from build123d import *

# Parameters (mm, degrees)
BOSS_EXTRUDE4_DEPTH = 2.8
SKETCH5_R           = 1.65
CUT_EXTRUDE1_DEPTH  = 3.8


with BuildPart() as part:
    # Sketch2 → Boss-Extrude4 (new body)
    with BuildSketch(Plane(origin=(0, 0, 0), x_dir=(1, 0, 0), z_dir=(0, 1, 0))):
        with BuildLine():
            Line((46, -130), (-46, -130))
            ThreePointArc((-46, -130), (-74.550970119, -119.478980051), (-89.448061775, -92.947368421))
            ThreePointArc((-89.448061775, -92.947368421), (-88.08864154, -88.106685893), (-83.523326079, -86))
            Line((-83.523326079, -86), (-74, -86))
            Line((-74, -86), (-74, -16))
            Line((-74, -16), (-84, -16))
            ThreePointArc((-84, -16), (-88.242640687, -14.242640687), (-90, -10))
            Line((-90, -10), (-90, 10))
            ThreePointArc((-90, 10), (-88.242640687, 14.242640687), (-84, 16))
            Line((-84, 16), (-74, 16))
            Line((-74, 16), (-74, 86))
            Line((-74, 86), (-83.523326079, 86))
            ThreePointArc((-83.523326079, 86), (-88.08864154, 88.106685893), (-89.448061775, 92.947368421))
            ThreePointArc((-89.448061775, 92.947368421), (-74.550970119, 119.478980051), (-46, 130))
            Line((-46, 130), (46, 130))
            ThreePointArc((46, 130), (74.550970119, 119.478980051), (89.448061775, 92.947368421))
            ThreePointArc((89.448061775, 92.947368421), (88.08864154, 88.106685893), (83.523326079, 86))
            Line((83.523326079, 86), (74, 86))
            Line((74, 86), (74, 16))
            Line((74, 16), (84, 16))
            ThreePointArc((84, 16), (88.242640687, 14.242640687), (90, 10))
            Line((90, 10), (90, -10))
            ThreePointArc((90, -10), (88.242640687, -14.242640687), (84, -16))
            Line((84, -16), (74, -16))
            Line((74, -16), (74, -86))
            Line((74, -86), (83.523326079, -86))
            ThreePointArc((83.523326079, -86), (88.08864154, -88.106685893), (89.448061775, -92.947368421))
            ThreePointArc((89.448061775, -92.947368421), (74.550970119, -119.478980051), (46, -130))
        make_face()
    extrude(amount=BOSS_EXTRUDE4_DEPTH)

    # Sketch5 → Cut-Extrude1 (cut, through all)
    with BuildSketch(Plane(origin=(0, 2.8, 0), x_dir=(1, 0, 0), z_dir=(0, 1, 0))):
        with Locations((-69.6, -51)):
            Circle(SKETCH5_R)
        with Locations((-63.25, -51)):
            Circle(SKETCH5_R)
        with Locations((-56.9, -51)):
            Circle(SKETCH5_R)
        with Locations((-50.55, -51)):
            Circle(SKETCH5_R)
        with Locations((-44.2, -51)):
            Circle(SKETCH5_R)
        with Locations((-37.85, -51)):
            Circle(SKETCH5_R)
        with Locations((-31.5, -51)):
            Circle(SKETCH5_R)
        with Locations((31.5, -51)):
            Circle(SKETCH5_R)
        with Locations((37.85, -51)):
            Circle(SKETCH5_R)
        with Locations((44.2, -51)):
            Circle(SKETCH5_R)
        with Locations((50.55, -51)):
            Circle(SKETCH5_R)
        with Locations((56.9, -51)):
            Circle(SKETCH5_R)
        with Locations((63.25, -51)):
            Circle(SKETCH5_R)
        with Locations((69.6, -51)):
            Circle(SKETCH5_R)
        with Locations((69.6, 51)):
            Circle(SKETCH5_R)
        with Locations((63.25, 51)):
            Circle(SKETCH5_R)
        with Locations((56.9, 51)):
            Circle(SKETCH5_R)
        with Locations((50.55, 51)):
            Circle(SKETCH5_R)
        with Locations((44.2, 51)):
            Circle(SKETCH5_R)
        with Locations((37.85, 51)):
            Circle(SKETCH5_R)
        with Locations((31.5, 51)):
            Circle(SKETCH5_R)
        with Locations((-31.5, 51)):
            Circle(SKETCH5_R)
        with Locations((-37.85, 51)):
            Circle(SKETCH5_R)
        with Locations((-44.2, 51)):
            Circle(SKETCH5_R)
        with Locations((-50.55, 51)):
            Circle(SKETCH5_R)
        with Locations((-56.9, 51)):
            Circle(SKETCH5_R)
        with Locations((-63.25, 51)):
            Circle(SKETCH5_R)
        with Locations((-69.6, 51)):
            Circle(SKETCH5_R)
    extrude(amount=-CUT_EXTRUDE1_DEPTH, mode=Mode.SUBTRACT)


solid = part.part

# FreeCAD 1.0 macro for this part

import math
import FreeCAD as App
import Part
import Sketcher

doc = App.newDocument("Part")
body = doc.addObject("PartDesign::Body", "Body")

sketch1 = body.newObject("Sketcher::SketchObject", "Sketch")
sketch1.AttachmentSupport = (doc.getObject("XZ_Plane"), [""])
sketch1.MapMode = "FlatFace"
sketch1.addGeometry([
    Part.LineSegment(App.Vector(-46, 130, 0), App.Vector(46, 130, 0)),
    Part.ArcOfCircle(Part.Circle(App.Vector(46, 86, 0), App.Vector(0, 0, 1), 44), math.radians(9), math.radians(90)),
    Part.ArcOfCircle(Part.Circle(App.Vector(84, 92, 0), App.Vector(0, 0, 1), 6), math.radians(-90), math.radians(9)),
    Part.LineSegment(App.Vector(84, 86, 0), App.Vector(74, 86, 0)),
    Part.LineSegment(App.Vector(74, 86, 0), App.Vector(74, 16, 0)),
    Part.LineSegment(App.Vector(74, 16, 0), App.Vector(84, 16, 0)),
    Part.ArcOfCircle(Part.Circle(App.Vector(84, 10, 0), App.Vector(0, 0, 1), 6), math.radians(0), math.radians(90)),
    Part.LineSegment(App.Vector(90, 10, 0), App.Vector(90, -10, 0)),
    Part.ArcOfCircle(Part.Circle(App.Vector(84, -10, 0), App.Vector(0, 0, 1), 6), math.radians(-90), math.radians(0)),
    Part.LineSegment(App.Vector(84, -16, 0), App.Vector(74, -16, 0)),
    Part.LineSegment(App.Vector(74, -16, 0), App.Vector(74, -86, 0)),
    Part.LineSegment(App.Vector(74, -86, 0), App.Vector(84, -86, 0)),
    Part.ArcOfCircle(Part.Circle(App.Vector(84, -92, 0), App.Vector(0, 0, 1), 6), math.radians(-9), math.radians(90)),
    Part.ArcOfCircle(Part.Circle(App.Vector(46, -86, 0), App.Vector(0, 0, 1), 44), math.radians(-90), math.radians(-9)),
    Part.LineSegment(App.Vector(46, -130, 0), App.Vector(-46, -130, 0)),
    Part.ArcOfCircle(Part.Circle(App.Vector(-46, -86, 0), App.Vector(0, 0, 1), 44), math.radians(-171), math.radians(-90)),
    Part.ArcOfCircle(Part.Circle(App.Vector(-84, -92, 0), App.Vector(0, 0, 1), 6), math.radians(90), math.radians(189)),
    Part.LineSegment(App.Vector(-84, -86, 0), App.Vector(-74, -86, 0)),
    Part.LineSegment(App.Vector(-74, -86, 0), App.Vector(-74, -16, 0)),
    Part.LineSegment(App.Vector(-74, -16, 0), App.Vector(-84, -16, 0)),
    Part.ArcOfCircle(Part.Circle(App.Vector(-84, -10, 0), App.Vector(0, 0, 1), 6), math.radians(180), math.radians(270)),
    Part.LineSegment(App.Vector(-90, -10, 0), App.Vector(-90, 10, 0)),
    Part.ArcOfCircle(Part.Circle(App.Vector(-84, 10, 0), App.Vector(0, 0, 1), 6), math.radians(90), math.radians(180)),
    Part.LineSegment(App.Vector(-84, 16, 0), App.Vector(-74, 16, 0)),
    Part.LineSegment(App.Vector(-74, 16, 0), App.Vector(-74, 86, 0)),
    Part.LineSegment(App.Vector(-74, 86, 0), App.Vector(-84, 86, 0)),
    Part.ArcOfCircle(Part.Circle(App.Vector(-84, 92, 0), App.Vector(0, 0, 1), 6), math.radians(171), math.radians(270)),
    Part.ArcOfCircle(Part.Circle(App.Vector(-46, 86, 0), App.Vector(0, 0, 1), 44), math.radians(90), math.radians(171)),
], False)
sketch1.addConstraint([
    Sketcher.Constraint("Tangent", 0, 2, 1, 2),
    Sketcher.Constraint("Tangent", 1, 1, 2, 2),
    Sketcher.Constraint("Tangent", 2, 1, 3, 1),
    Sketcher.Constraint("Coincident", 3, 2, 4, 1),
    Sketcher.Constraint("Coincident", 4, 2, 5, 1),
    Sketcher.Constraint("Tangent", 5, 2, 6, 2),
    Sketcher.Constraint("Tangent", 6, 1, 7, 1),
    Sketcher.Constraint("Tangent", 7, 2, 8, 2),
    Sketcher.Constraint("Tangent", 8, 1, 9, 1),
    Sketcher.Constraint("Coincident", 9, 2, 10, 1),
    Sketcher.Constraint("Coincident", 10, 2, 11, 1),
    Sketcher.Constraint("Tangent", 11, 2, 12, 2),
    Sketcher.Constraint("Tangent", 12, 1, 13, 2),
    Sketcher.Constraint("Tangent", 13, 1, 14, 1),
    Sketcher.Constraint("Tangent", 14, 2, 15, 2),
    Sketcher.Constraint("Tangent", 15, 1, 16, 2),
    Sketcher.Constraint("Tangent", 16, 1, 17, 1),
    Sketcher.Constraint("Coincident", 17, 2, 18, 1),
    Sketcher.Constraint("Coincident", 18, 2, 19, 1),
    Sketcher.Constraint("Tangent", 19, 2, 20, 2),
    Sketcher.Constraint("Tangent", 20, 1, 21, 1),
    Sketcher.Constraint("Tangent", 21, 2, 22, 2),
    Sketcher.Constraint("Tangent", 22, 1, 23, 1),
    Sketcher.Constraint("Coincident", 23, 2, 24, 1),
    Sketcher.Constraint("Coincident", 24, 2, 25, 1),
    Sketcher.Constraint("Tangent", 25, 2, 26, 2),
    Sketcher.Constraint("Tangent", 26, 1, 27, 2),
    Sketcher.Constraint("Tangent", 27, 1, 0, 1),
    Sketcher.Constraint("Horizontal", 0),
    Sketcher.Constraint("Horizontal", 3),
    Sketcher.Constraint("Vertical", 4),
    Sketcher.Constraint("Horizontal", 5),
    Sketcher.Constraint("Vertical", 7),
    Sketcher.Constraint("Horizontal", 9),
    Sketcher.Constraint("Vertical", 10),
    Sketcher.Constraint("Horizontal", 11),
    Sketcher.Constraint("Horizontal", 14),
    Sketcher.Constraint("Horizontal", 17),
    Sketcher.Constraint("Vertical", 18),
    Sketcher.Constraint("Horizontal", 19),
    Sketcher.Constraint("Vertical", 21),
    Sketcher.Constraint("Horizontal", 23),
    Sketcher.Constraint("Vertical", 24),
    Sketcher.Constraint("Horizontal", 25),
    Sketcher.Constraint("Equal", 2, 6),
    Sketcher.Constraint("Equal", 6, 8),
    Sketcher.Constraint("Equal", 8, 12),
    Sketcher.Constraint("Equal", 1, 13),
    Sketcher.Constraint("Equal", 13, 15),
    Sketcher.Constraint("Equal", 12, 16),
    Sketcher.Constraint("Equal", 16, 20),
    Sketcher.Constraint("Equal", 20, 22),
    Sketcher.Constraint("Equal", 22, 26),
    Sketcher.Constraint("Equal", 15, 27),
    Sketcher.Constraint("Symmetric", 1, 3, 15, 3, -1, 1),
    Sketcher.Constraint("Symmetric", 6, 3, 20, 3, -1, 1),
    Sketcher.Constraint("Symmetric", 12, 3, 26, 3, -1, 1),
    Sketcher.Constraint("Symmetric", 3, 2, 17, 2, -1, 1),
    Sketcher.Constraint("Symmetric", 9, 2, 23, 2, -1, 1),
    Sketcher.Constraint("Symmetric", 12, 3, 16, 3, -2),
    Sketcher.Constraint("Symmetric", 9, 2, 18, 2, -2),
    Sketcher.Constraint("Horizontal", 27, 3, 2, 1),
    Sketcher.Constraint("Radius", 1, 44.0),
    Sketcher.Constraint("Radius", 2, 6.0),
    Sketcher.Constraint("DistanceX", 0, 1, 0, 2, 92.0),
    Sketcher.Constraint("DistanceX", 5, 1, 5, 2, 10.0),
    Sketcher.Constraint("DistanceY", 4, 2, 4, 1, 70.0),
    Sketcher.Constraint("DistanceY", 7, 2, 7, 1, 20.0),
    Sketcher.Constraint("DistanceX", -1, 1, 6, 3, 84.0),
])
pad1 = body.newObject("PartDesign::Pad", "Pad")
pad1.Profile = sketch1
pad1.Length = 2.8
pad1.Reversed = True

sketch2 = body.newObject("Sketcher::SketchObject", "Sketch001")
sketch2.AttachmentSupport = (doc.getObject("XZ_Plane"), [""])
sketch2.MapMode = "FlatFace"
sketch2.AttachmentOffset = App.Placement(App.Vector(0, 0, -2.8), App.Rotation())
sketch2.addGeometry([
    Part.Circle(App.Vector(-69.6, 51, 0), App.Vector(0, 0, 1), 1.6),
    Part.Circle(App.Vector(-63.2, 51, 0), App.Vector(0, 0, 1), 1.6),
    Part.Circle(App.Vector(-56.9, 51, 0), App.Vector(0, 0, 1), 1.6),
    Part.Circle(App.Vector(-50.5, 51, 0), App.Vector(0, 0, 1), 1.6),
    Part.Circle(App.Vector(-44.2, 51, 0), App.Vector(0, 0, 1), 1.6),
    Part.Circle(App.Vector(-37.9, 51, 0), App.Vector(0, 0, 1), 1.6),
    Part.Circle(App.Vector(-31.5, 51, 0), App.Vector(0, 0, 1), 1.6),
    Part.Circle(App.Vector(31.5, 51, 0), App.Vector(0, 0, 1), 1.6),
    Part.Circle(App.Vector(37.9, 51, 0), App.Vector(0, 0, 1), 1.6),
    Part.Circle(App.Vector(44.2, 51, 0), App.Vector(0, 0, 1), 1.6),
    Part.Circle(App.Vector(50.5, 51, 0), App.Vector(0, 0, 1), 1.6),
    Part.Circle(App.Vector(56.9, 51, 0), App.Vector(0, 0, 1), 1.6),
    Part.Circle(App.Vector(63.2, 51, 0), App.Vector(0, 0, 1), 1.6),
    Part.Circle(App.Vector(69.6, 51, 0), App.Vector(0, 0, 1), 1.6),
    Part.Circle(App.Vector(69.6, -51, 0), App.Vector(0, 0, 1), 1.6),
    Part.Circle(App.Vector(63.2, -51, 0), App.Vector(0, 0, 1), 1.6),
    Part.Circle(App.Vector(56.9, -51, 0), App.Vector(0, 0, 1), 1.6),
    Part.Circle(App.Vector(50.5, -51, 0), App.Vector(0, 0, 1), 1.6),
    Part.Circle(App.Vector(44.2, -51, 0), App.Vector(0, 0, 1), 1.6),
    Part.Circle(App.Vector(37.9, -51, 0), App.Vector(0, 0, 1), 1.6),
    Part.Circle(App.Vector(31.5, -51, 0), App.Vector(0, 0, 1), 1.6),
    Part.Circle(App.Vector(-31.5, -51, 0), App.Vector(0, 0, 1), 1.6),
    Part.Circle(App.Vector(-37.9, -51, 0), App.Vector(0, 0, 1), 1.6),
    Part.Circle(App.Vector(-44.2, -51, 0), App.Vector(0, 0, 1), 1.6),
    Part.Circle(App.Vector(-50.5, -51, 0), App.Vector(0, 0, 1), 1.6),
    Part.Circle(App.Vector(-56.9, -51, 0), App.Vector(0, 0, 1), 1.6),
    Part.Circle(App.Vector(-63.2, -51, 0), App.Vector(0, 0, 1), 1.6),
    Part.Circle(App.Vector(-69.6, -51, 0), App.Vector(0, 0, 1), 1.6),
], False)
sketch2.addConstraint([
    Sketcher.Constraint("Equal", 0, 1),
    Sketcher.Constraint("Equal", 1, 2),
    Sketcher.Constraint("Equal", 2, 3),
    Sketcher.Constraint("Equal", 3, 4),
    Sketcher.Constraint("Equal", 4, 5),
    Sketcher.Constraint("Equal", 5, 6),
    Sketcher.Constraint("Equal", 6, 7),
    Sketcher.Constraint("Equal", 7, 8),
    Sketcher.Constraint("Equal", 8, 9),
    Sketcher.Constraint("Equal", 9, 10),
    Sketcher.Constraint("Equal", 10, 11),
    Sketcher.Constraint("Equal", 11, 12),
    Sketcher.Constraint("Equal", 12, 13),
    Sketcher.Constraint("Equal", 13, 14),
    Sketcher.Constraint("Equal", 14, 15),
    Sketcher.Constraint("Equal", 15, 16),
    Sketcher.Constraint("Equal", 16, 17),
    Sketcher.Constraint("Equal", 17, 18),
    Sketcher.Constraint("Equal", 18, 19),
    Sketcher.Constraint("Equal", 19, 20),
    Sketcher.Constraint("Equal", 20, 21),
    Sketcher.Constraint("Equal", 21, 22),
    Sketcher.Constraint("Equal", 22, 23),
    Sketcher.Constraint("Equal", 23, 24),
    Sketcher.Constraint("Equal", 24, 25),
    Sketcher.Constraint("Equal", 25, 26),
    Sketcher.Constraint("Equal", 26, 27),
    Sketcher.Constraint("Symmetric", 0, 3, 14, 3, -1, 1),
    Sketcher.Constraint("Symmetric", 1, 3, 15, 3, -1, 1),
    Sketcher.Constraint("Symmetric", 2, 3, 16, 3, -1, 1),
    Sketcher.Constraint("Symmetric", 3, 3, 17, 3, -1, 1),
    Sketcher.Constraint("Symmetric", 4, 3, 18, 3, -1, 1),
    Sketcher.Constraint("Symmetric", 5, 3, 19, 3, -1, 1),
    Sketcher.Constraint("Symmetric", 6, 3, 20, 3, -1, 1),
    Sketcher.Constraint("Symmetric", 7, 3, 21, 3, -1, 1),
    Sketcher.Constraint("Symmetric", 8, 3, 22, 3, -1, 1),
    Sketcher.Constraint("Symmetric", 9, 3, 23, 3, -1, 1),
    Sketcher.Constraint("Symmetric", 10, 3, 24, 3, -1, 1),
    Sketcher.Constraint("Symmetric", 11, 3, 25, 3, -1, 1),
    Sketcher.Constraint("Symmetric", 12, 3, 26, 3, -1, 1),
    Sketcher.Constraint("Symmetric", 13, 3, 27, 3, -1, 1),
    Sketcher.Constraint("Symmetric", 6, 3, 7, 3, -2),
    Sketcher.Constraint("Symmetric", 5, 3, 8, 3, -2),
    Sketcher.Constraint("Symmetric", 4, 3, 9, 3, -2),
    Sketcher.Constraint("Symmetric", 3, 3, 10, 3, -2),
    Sketcher.Constraint("Symmetric", 2, 3, 11, 3, -2),
    Sketcher.Constraint("Symmetric", 1, 3, 12, 3, -2),
    Sketcher.Constraint("Symmetric", 0, 3, 13, 3, -2),
    Sketcher.Constraint("Horizontal", 0, 3, 1, 3),
    Sketcher.Constraint("Horizontal", 1, 3, 2, 3),
    Sketcher.Constraint("Horizontal", 2, 3, 3, 3),
    Sketcher.Constraint("Horizontal", 3, 3, 4, 3),
    Sketcher.Constraint("Horizontal", 4, 3, 5, 3),
    Sketcher.Constraint("Horizontal", 5, 3, 6, 3),
    Sketcher.Constraint("Diameter", 0, 3.3),
    Sketcher.Constraint("DistanceY", -1, 1, 0, 3, 51.0),
    Sketcher.Constraint("DistanceX", 6, 3, 7, 3, 63.0),
    Sketcher.Constraint("DistanceX", 0, 3, -1, 1, 69.6),
    Sketcher.Constraint("DistanceX", 2, 3, -1, 1, 56.9),
    Sketcher.Constraint("DistanceX", 4, 3, -1, 1, 44.2),
    Sketcher.Constraint("DistanceX", 1, 3, 3, 3, 12.7),
    Sketcher.Constraint("DistanceX", 3, 3, 5, 3, 12.7),
    Sketcher.Constraint("DistanceX", 5, 3, 8, 3, 75.7),
])
pocket1 = body.newObject("PartDesign::Pocket", "Pocket")
pocket1.Profile = sketch2
pocket1.Type = "ThroughAll"
pocket1.Reversed = True

doc.recompute()
